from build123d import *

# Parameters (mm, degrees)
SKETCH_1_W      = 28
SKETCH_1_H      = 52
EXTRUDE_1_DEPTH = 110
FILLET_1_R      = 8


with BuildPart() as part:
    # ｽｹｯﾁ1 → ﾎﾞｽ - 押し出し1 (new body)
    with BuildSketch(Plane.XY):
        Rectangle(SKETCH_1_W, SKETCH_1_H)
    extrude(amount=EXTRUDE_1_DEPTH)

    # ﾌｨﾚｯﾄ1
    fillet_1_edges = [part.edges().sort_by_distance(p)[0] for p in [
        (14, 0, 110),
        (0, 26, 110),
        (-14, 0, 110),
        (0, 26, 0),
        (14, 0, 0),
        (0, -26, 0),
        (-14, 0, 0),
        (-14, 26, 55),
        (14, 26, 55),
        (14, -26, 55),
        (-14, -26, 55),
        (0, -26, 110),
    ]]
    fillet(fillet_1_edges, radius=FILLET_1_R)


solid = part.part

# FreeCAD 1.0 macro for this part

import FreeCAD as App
import Part
import Sketcher
from FreeCAD import Vector
Q = App.Units.Quantity

doc = App.newDocument("Part")
body = doc.addObject("PartDesign::Body", "Body")

# Sketch on XY plane
sketch1 = body.newObject("Sketcher::SketchObject", "Sketch")
sketch1.AttachmentSupport = (doc.getObject("XY_Plane"), [""])
sketch1.MapMode = "FlatFace"
sketch1.addGeometry([
    Part.LineSegment(Vector(-14, 26, 0), Vector(-14, -26, 0)),
    Part.LineSegment(Vector(-14, -26, 0), Vector(14, -26, 0)),
    Part.LineSegment(Vector(14, -26, 0), Vector(14, 26, 0)),
    Part.LineSegment(Vector(14, 26, 0), Vector(-14, 26, 0)),
], False)
sketch1.addConstraint([
    Sketcher.Constraint("Coincident", 0, 2, 1, 1),
    Sketcher.Constraint("Coincident", 1, 2, 2, 1),
    Sketcher.Constraint("Coincident", 2, 2, 3, 1),
    Sketcher.Constraint("Coincident", 3, 2, 0, 1),
    Sketcher.Constraint("Vertical", 0),
    Sketcher.Constraint("Horizontal", 1),
    Sketcher.Constraint("Vertical", 2),
    Sketcher.Constraint("Horizontal", 3),
    Sketcher.Constraint("Symmetric", 0, 2, 2, 2, -1, 1),
    Sketcher.Constraint("DistanceX", 1, 1, 1, 2, Q("28 mm")),
    Sketcher.Constraint("DistanceY", 0, 2, 0, 1, Q("52 mm")),
])
pad1 = body.newObject("PartDesign::Pad", "Pad")
pad1.Profile = sketch1
pad1.Length = 110
doc.recompute()

fillet = body.newObject("PartDesign::Fillet", "Fillet")
fillet.Base = (pad1, ["Edge1"])
fillet.UseAllEdges = True
fillet.Radius = 8

doc.recompute()
